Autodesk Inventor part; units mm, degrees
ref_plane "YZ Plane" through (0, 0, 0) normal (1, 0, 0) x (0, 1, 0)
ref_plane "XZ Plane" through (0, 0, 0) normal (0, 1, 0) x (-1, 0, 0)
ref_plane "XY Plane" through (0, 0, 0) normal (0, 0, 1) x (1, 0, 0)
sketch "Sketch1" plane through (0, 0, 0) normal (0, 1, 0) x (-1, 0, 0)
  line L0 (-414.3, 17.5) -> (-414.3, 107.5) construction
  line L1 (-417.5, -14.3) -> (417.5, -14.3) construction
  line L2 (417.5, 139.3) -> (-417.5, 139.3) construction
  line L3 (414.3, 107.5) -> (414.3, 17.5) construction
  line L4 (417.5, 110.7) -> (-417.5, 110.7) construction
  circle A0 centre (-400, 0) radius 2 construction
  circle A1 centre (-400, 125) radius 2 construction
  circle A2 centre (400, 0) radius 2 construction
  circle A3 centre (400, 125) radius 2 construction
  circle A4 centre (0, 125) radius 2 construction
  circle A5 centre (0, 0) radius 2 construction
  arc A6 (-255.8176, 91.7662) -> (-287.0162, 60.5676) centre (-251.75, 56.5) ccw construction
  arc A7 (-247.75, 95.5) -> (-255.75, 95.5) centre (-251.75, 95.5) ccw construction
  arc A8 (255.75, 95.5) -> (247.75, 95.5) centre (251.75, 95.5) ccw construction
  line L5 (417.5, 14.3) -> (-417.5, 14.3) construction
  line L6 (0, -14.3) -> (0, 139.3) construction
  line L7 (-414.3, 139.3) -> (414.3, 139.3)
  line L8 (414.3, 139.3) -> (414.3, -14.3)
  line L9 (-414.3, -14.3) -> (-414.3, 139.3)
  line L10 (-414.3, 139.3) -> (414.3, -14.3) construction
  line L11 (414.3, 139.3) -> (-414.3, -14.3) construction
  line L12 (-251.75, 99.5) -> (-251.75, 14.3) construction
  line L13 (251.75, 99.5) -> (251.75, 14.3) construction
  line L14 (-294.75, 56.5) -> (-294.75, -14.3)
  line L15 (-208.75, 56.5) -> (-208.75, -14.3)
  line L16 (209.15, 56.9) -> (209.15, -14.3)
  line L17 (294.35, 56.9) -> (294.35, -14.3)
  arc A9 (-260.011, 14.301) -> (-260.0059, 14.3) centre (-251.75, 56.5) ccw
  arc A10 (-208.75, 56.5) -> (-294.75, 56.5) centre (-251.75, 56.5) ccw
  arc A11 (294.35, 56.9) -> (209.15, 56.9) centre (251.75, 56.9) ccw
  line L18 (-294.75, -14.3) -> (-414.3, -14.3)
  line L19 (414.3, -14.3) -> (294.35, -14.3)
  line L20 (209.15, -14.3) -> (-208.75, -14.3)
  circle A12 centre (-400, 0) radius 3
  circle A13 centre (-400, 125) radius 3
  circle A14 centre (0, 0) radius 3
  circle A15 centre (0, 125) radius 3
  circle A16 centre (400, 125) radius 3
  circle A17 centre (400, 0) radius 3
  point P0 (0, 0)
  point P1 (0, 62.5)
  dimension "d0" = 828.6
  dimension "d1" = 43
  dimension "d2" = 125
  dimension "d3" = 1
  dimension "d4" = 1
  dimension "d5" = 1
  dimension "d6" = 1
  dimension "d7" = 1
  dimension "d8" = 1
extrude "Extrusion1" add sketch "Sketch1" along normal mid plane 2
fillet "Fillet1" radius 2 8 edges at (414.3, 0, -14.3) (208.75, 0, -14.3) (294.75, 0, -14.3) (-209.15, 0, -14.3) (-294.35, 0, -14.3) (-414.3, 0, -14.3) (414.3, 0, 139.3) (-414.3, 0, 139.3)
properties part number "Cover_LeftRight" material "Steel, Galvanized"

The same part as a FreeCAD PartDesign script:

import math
import FreeCAD as App
import Part
import Sketcher

V = App.Vector
Q = App.Units.Quantity


def edges_at(feature, points):
    """Names of the edges that pass closest to the given points."""
    edges = feature.Shape.Edges
    near = lambda p: min(range(len(edges)), key=lambda i: edges[i].distToShape(Part.Vertex(*p))[0])
    return sorted({f"Edge{near(p) + 1}" for p in points})

doc = App.newDocument("Part")
body = doc.addObject("PartDesign::Body", "Body")

# Sketch on XZ plane
sketch1 = body.newObject("Sketcher::SketchObject", "Sketch")
sketch1.AttachmentSupport = (doc.getObject("XZ_Plane"), [""])
sketch1.MapMode = "FlatFace"
sketch1.addGeometry([
    Part.LineSegment(V(-414.3, 139.3, 0), V(414.3, 139.3, 0)),  # 0
    Part.LineSegment(V(414.3, 139.3, 0), V(414.3, -14.3, 0)),  # 1
    Part.LineSegment(V(414.3, -14.3, 0), V(294.8, -14.3, 0)),  # 2
    Part.LineSegment(V(294.8, -14.3, 0), V(294.8, 56.5, 0)),  # 3
    Part.ArcOfCircle(Part.Circle(V(251.8, 56.5, 0), V(0, 0, 1), 43), math.radians(0), math.radians(180)),  # 4
    Part.LineSegment(V(208.8, 56.5, 0), V(208.8, -14.3, 0)),  # 5
    Part.LineSegment(V(208.8, -14.3, 0), V(-209.2, -14.3, 0)),  # 6
    Part.LineSegment(V(-209.2, -14.3, 0), V(-209.2, 56.9, 0)),  # 7
    Part.ArcOfCircle(Part.Circle(V(-251.8, 56.9, 0), V(0, 0, 1), 42.6), math.radians(0), math.radians(180)),  # 8
    Part.LineSegment(V(-294.4, 56.9, 0), V(-294.4, -14.3, 0)),  # 9
    Part.LineSegment(V(-294.4, -14.3, 0), V(-414.3, -14.3, 0)),  # 10
    Part.LineSegment(V(-414.3, -14.3, 0), V(-414.3, 139.3, 0)),  # 11
    Part.Circle(V(400, 0, 0), V(0, 0, 1), 3),  # 12
    Part.Circle(V(0, 0, 0), V(0, 0, 1), 3),  # 13
    Part.Circle(V(-400, 0, 0), V(0, 0, 1), 3),  # 14
    Part.Circle(V(400, 125, 0), V(0, 0, 1), 3),  # 15
    Part.Circle(V(0, 125, 0), V(0, 0, 1), 3),  # 16
    Part.Circle(V(-400, 125, 0), V(0, 0, 1), 3),  # 17
], False)
sketch1.addConstraint([
    Sketcher.Constraint("Coincident", 0, 2, 1, 1),
    Sketcher.Constraint("Coincident", 1, 2, 2, 1),
    Sketcher.Constraint("Coincident", 2, 2, 3, 1),
    Sketcher.Constraint("Tangent", 3, 2, 4, 1),
    Sketcher.Constraint("Tangent", 4, 2, 5, 1),
    Sketcher.Constraint("Coincident", 5, 2, 6, 1),
    Sketcher.Constraint("Coincident", 6, 2, 7, 1),
    Sketcher.Constraint("Tangent", 7, 2, 8, 1),
    Sketcher.Constraint("Tangent", 8, 2, 9, 1),
    Sketcher.Constraint("Coincident", 9, 2, 10, 1),
    Sketcher.Constraint("Coincident", 10, 2, 11, 1),
    Sketcher.Constraint("Coincident", 11, 2, 0, 1),
    Sketcher.Constraint("Horizontal", 0),
    Sketcher.Constraint("Vertical", 1),
    Sketcher.Constraint("Horizontal", 2),
    Sketcher.Constraint("Vertical", 3),
    Sketcher.Constraint("Vertical", 5),
    Sketcher.Constraint("Horizontal", 6),
    Sketcher.Constraint("Vertical", 7),
    Sketcher.Constraint("Vertical", 9),
    Sketcher.Constraint("Horizontal", 10),
    Sketcher.Constraint("Vertical", 11),
    Sketcher.Constraint("Coincident", 13, 3, -1, 1),
    Sketcher.Constraint("Equal", 12, 13),
    Sketcher.Constraint("Equal", 13, 14),
    Sketcher.Constraint("Equal", 14, 15),
    Sketcher.Constraint("Equal", 15, 16),
    Sketcher.Constraint("Equal", 16, 17),
    Sketcher.Constraint("Symmetric", 12, 3, 14, 3, -1, 1),
    Sketcher.Constraint("Symmetric", 15, 3, 17, 3, -2),
    Sketcher.Constraint("Symmetric", 1, 2, 10, 2, -2),
    Sketcher.Constraint("PointOnObject", 12, 3, -1),
    Sketcher.Constraint("PointOnObject", 16, 3, -2),
    Sketcher.Constraint("Horizontal", 15, 3, 16, 3),
    Sketcher.Constraint("Horizontal", 2, 2, 5, 2),
    Sketcher.Constraint("Vertical", 12, 3, 15, 3),
    Sketcher.Constraint("Radius", 4, Q("43 mm")),
    Sketcher.Constraint("Diameter", 12, Q("6 mm")),
    Sketcher.Constraint("DistanceX", 0, 1, 0, 2, Q("828.6 mm")),
    Sketcher.Constraint("DistanceY", -1, 1, 15, 3, Q("125 mm")),
    Sketcher.Constraint("Radius", 8, Q("42.6 mm")),
    Sketcher.Constraint("DistanceX", 6, 2, 6, 1, Q("417.9 mm")),
    Sketcher.Constraint("DistanceY", 1, 2, 1, 1, Q("153.6 mm")),
    Sketcher.Constraint("DistanceY", 3, 1, 3, 2, Q("70.8 mm")),
    Sketcher.Constraint("DistanceY", 7, 1, 7, 2, Q("71.2 mm")),
    Sketcher.Constraint("DistanceX", -1, 1, 12, 3, Q("400 mm")),
    Sketcher.Constraint("DistanceX", 2, 2, 2, 1, Q("119.55 mm")),
    Sketcher.Constraint("DistanceY", -1, 1, 4, 3, Q("56.5 mm")),
])
pad1 = body.newObject("PartDesign::Pad", "Pad")
pad1.Profile = sketch1
pad1.Length = 2
pad1.Midplane = True
doc.recompute()

fillet = body.newObject("PartDesign::Fillet", "Fillet")
fillet.Base = (pad1, edges_at(pad1, [
    (414.3, 0, -14.3),
    (208.75, 0, -14.3),
    (294.75, 0, -14.3),
    (-209.15, 0, -14.3),
    (-294.35, 0, -14.3),
    (-414.3, 0, -14.3),
    (414.3, 0, 139.3),
    (-414.3, 0, 139.3),
]))
fillet.Radius = 2

doc.recompute()
